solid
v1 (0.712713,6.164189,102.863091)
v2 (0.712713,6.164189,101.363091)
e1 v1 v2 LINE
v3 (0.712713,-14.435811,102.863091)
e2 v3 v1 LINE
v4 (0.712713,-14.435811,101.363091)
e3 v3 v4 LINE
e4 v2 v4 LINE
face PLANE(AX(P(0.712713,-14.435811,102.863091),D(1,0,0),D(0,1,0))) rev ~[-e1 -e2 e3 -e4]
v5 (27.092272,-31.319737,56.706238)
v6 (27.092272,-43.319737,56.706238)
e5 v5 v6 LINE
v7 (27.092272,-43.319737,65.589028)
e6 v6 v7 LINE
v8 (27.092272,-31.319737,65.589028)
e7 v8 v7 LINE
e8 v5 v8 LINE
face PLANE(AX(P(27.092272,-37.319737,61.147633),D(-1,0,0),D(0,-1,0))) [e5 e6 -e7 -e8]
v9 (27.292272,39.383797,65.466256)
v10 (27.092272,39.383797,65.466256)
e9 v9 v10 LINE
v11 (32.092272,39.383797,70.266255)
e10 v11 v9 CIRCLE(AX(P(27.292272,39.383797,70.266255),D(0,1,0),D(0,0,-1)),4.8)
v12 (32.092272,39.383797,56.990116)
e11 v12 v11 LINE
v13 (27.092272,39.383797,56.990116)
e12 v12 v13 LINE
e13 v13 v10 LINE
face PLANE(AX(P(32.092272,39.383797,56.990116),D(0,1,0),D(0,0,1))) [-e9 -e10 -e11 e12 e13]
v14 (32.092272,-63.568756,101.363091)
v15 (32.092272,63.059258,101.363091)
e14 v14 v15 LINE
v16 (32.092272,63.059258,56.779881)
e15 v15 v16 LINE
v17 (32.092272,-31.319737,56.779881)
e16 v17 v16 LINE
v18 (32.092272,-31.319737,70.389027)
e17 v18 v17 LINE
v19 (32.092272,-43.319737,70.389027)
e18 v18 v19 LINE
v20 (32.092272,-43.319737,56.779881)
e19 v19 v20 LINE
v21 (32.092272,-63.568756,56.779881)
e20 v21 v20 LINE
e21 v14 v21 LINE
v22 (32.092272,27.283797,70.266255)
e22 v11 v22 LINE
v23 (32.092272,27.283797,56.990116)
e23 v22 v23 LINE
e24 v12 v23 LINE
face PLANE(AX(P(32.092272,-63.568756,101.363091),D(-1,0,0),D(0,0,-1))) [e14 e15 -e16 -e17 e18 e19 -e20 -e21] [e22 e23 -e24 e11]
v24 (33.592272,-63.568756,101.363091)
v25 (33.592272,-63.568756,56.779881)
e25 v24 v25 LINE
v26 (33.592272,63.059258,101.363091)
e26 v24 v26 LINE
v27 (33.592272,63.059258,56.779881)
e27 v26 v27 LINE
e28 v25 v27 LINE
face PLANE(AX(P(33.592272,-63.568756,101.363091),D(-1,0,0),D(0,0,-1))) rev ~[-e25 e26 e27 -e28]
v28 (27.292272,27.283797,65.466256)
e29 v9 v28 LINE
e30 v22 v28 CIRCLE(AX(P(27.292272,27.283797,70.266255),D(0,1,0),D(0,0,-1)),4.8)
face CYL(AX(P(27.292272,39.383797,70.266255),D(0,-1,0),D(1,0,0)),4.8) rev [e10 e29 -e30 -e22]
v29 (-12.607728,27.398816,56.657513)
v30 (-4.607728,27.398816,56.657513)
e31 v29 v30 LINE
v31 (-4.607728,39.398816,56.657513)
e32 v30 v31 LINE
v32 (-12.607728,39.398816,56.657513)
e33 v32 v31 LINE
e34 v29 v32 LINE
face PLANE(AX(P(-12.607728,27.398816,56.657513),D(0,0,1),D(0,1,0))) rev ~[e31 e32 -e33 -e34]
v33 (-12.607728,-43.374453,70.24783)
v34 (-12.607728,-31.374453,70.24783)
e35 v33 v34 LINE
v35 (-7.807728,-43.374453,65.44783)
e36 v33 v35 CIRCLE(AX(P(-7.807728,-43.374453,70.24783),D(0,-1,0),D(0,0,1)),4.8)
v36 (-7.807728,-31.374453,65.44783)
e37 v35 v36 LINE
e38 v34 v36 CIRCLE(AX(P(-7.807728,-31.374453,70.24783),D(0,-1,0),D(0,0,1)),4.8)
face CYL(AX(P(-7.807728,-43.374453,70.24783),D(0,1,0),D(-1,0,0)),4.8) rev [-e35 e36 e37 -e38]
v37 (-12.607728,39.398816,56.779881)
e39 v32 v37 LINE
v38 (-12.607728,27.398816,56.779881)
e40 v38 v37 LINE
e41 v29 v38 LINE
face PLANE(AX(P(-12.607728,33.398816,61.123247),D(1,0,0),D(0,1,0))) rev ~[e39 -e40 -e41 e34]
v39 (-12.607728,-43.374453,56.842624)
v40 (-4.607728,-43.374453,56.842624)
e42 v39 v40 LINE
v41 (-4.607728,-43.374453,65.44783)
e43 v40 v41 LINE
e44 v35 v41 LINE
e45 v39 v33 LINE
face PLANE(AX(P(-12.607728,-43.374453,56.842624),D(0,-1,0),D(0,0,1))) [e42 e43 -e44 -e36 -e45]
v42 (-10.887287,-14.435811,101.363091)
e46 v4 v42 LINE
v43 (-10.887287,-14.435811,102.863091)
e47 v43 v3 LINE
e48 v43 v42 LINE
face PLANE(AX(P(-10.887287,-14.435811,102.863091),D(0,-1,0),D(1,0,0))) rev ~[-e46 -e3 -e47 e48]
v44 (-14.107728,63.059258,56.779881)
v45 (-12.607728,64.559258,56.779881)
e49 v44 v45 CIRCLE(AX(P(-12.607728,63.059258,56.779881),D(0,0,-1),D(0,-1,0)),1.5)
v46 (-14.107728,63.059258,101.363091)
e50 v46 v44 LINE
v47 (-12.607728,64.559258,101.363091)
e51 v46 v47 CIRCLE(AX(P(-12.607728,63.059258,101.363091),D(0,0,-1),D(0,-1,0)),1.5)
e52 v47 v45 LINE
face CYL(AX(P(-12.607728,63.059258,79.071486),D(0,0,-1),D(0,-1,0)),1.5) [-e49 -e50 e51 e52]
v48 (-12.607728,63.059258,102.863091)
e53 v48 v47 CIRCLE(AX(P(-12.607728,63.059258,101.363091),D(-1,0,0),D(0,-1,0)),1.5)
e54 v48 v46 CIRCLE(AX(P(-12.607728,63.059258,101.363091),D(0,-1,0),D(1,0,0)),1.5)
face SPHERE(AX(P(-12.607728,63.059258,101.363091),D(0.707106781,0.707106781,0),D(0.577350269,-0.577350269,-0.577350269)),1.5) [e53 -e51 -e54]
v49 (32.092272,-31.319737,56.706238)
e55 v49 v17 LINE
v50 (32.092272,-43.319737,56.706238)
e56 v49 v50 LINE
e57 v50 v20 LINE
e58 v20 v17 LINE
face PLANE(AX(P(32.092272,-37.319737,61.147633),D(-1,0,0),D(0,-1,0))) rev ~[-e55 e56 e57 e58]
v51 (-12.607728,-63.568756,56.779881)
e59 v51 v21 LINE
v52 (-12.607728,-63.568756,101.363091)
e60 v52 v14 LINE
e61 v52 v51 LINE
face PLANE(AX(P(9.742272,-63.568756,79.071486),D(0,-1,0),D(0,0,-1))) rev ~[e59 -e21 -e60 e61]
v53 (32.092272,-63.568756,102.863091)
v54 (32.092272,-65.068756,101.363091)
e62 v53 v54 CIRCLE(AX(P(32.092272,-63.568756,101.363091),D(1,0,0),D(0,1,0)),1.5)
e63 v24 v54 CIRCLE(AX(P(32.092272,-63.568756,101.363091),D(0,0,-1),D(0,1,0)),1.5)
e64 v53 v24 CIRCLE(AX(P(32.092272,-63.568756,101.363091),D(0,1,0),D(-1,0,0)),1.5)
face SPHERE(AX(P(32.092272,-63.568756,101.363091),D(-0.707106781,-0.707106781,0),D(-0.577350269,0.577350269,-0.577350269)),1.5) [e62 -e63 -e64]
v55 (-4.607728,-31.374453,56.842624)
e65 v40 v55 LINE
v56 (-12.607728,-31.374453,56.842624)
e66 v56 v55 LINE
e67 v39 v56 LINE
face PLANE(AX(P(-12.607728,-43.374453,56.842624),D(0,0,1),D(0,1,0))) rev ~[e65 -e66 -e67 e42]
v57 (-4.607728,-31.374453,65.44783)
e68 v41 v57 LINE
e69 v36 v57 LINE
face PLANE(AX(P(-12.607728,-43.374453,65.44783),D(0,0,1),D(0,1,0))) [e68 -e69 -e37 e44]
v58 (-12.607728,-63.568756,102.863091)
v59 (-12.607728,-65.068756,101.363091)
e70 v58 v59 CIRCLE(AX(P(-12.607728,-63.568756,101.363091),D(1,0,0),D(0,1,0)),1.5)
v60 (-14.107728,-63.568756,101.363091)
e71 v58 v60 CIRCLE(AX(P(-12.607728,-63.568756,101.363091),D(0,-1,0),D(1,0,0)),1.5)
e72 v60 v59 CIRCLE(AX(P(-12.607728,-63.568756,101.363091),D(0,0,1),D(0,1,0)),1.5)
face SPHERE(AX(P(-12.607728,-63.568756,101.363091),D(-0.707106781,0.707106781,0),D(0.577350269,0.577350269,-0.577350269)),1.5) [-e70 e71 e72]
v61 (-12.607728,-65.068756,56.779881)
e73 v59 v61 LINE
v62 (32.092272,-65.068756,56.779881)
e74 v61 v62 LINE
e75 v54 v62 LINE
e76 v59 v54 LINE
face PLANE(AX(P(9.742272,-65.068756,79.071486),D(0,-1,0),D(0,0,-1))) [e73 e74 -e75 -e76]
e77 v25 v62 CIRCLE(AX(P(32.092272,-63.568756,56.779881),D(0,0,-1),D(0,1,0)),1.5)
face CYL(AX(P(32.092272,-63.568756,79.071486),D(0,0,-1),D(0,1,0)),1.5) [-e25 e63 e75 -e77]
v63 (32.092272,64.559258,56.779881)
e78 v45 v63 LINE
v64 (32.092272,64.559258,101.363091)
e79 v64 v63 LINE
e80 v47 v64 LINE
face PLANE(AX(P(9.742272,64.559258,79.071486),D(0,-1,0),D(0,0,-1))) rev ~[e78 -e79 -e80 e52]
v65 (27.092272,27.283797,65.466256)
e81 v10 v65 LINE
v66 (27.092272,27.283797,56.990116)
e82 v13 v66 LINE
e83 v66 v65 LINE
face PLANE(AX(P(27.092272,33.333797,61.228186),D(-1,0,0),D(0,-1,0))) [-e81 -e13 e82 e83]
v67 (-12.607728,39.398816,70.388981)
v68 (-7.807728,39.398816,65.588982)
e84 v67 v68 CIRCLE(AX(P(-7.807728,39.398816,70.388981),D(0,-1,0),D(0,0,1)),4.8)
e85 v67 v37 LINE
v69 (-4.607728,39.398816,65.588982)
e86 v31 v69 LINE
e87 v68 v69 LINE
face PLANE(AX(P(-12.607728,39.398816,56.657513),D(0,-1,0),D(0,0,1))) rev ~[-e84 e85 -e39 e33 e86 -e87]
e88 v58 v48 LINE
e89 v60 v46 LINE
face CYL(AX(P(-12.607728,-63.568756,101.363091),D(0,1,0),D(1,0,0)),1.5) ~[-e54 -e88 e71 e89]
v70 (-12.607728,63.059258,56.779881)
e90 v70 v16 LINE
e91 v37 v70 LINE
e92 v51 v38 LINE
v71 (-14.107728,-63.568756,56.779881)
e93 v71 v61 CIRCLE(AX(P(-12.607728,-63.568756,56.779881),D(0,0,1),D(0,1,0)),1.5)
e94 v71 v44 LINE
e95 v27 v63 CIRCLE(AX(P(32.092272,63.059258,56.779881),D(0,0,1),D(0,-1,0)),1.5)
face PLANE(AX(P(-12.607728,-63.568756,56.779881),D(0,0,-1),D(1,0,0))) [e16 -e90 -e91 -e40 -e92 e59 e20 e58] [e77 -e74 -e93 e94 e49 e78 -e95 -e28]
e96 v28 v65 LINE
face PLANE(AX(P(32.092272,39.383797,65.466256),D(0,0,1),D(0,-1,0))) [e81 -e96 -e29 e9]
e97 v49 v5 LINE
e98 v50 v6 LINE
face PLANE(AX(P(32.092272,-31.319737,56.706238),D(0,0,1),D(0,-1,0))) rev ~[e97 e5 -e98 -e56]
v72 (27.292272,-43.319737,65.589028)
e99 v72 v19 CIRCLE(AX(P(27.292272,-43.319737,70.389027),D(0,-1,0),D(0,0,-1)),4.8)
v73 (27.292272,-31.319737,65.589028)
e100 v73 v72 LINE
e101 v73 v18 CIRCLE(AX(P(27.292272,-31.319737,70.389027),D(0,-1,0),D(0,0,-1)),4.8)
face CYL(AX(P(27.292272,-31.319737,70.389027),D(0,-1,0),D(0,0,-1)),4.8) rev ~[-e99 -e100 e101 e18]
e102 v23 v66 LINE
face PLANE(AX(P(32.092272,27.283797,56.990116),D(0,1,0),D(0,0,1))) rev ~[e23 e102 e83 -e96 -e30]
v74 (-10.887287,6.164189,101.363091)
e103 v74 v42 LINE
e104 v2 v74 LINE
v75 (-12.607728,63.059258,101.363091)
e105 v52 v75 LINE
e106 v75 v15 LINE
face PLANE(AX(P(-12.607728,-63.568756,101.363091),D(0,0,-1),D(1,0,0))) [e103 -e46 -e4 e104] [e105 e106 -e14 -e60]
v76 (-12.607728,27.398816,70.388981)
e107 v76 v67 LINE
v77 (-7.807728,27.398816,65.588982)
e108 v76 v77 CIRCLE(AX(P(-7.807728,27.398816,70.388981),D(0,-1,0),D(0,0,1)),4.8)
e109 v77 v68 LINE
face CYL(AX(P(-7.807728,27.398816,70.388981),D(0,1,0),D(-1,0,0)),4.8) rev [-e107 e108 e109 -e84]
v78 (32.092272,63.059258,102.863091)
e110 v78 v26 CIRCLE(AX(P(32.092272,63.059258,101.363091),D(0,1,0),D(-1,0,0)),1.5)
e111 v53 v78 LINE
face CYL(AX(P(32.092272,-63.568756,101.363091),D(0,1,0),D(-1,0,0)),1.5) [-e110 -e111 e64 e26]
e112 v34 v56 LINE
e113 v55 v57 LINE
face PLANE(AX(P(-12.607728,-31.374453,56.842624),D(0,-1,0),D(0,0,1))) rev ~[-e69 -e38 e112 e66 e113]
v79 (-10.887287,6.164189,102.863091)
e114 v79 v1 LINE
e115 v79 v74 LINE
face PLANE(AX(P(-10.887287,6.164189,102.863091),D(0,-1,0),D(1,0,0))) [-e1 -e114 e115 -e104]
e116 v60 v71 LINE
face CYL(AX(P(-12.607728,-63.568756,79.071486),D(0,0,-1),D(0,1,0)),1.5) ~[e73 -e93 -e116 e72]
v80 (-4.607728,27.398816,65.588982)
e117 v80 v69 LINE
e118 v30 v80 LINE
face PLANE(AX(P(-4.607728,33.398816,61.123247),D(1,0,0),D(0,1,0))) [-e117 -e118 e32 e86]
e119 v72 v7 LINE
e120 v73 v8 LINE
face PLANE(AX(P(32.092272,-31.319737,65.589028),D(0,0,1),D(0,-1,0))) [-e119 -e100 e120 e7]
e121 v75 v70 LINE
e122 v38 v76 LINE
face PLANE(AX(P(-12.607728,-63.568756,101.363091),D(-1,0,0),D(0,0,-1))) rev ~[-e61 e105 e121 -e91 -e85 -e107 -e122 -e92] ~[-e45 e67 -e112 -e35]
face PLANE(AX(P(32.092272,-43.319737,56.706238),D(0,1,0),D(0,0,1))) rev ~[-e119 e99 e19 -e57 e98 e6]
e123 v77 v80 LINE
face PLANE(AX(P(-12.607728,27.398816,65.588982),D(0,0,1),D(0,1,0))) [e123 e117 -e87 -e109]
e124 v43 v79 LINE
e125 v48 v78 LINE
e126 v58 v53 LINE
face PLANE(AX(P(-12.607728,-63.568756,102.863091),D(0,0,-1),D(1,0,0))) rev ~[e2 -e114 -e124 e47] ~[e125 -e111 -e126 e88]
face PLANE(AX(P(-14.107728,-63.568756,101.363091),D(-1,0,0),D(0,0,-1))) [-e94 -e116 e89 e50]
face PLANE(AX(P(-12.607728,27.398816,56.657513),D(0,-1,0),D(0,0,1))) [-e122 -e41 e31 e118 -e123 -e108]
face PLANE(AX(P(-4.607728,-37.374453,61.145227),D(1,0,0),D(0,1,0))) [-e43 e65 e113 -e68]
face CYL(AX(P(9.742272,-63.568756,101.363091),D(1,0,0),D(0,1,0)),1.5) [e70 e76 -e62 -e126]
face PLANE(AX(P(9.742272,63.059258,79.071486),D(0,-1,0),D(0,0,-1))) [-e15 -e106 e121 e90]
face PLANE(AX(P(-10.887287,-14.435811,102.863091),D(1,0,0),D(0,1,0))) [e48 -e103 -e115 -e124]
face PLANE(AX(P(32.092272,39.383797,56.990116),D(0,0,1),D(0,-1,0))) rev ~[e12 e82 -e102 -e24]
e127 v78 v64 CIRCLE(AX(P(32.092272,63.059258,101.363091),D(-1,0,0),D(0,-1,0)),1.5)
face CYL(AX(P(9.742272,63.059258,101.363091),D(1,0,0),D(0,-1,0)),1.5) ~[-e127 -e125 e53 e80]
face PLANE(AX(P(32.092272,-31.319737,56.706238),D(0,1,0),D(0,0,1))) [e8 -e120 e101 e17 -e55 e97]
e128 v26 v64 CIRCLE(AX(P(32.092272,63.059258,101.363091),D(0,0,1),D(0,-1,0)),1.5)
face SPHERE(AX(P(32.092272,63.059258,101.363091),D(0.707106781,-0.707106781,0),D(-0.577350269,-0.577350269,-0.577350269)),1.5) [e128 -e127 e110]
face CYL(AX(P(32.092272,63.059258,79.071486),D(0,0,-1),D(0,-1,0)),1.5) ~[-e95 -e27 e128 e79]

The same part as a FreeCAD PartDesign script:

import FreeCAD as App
import Part
import Sketcher


def edges_at(feature, points):
    """Names of the edges that pass closest to the given points."""
    edges = feature.Shape.Edges
    near = lambda p: min(range(len(edges)), key=lambda i: edges[i].distToShape(Part.Vertex(*p))[0])
    return sorted({f"Edge{near(p) + 1}" for p in points})


def faces_at(feature, points):
    """Names of the faces that lie closest to the given points."""
    faces = feature.Shape.Faces
    near = lambda p: min(range(len(faces)), key=lambda i: faces[i].distToShape(Part.Vertex(*p))[0])
    return sorted({f"Face{near(p) + 1}" for p in points})


def add_polygon(sketch, points):
    """Adds a closed chain of lines whose ends are joined by coincident constraints."""
    first, n = sketch.GeometryCount, len(points)
    for a, b in zip(points, points[1:] + points[:1]):
        sketch.addGeometry(Part.LineSegment(App.Vector(*a, 0), App.Vector(*b, 0)), False)
    for i in range(n):
        sketch.addConstraint(Sketcher.Constraint("Coincident", first + i, 2, first + (i + 1) % n, 1))

doc = App.newDocument("Part")
body = doc.addObject("PartDesign::Body", "Body")

sketch1 = body.newObject("Sketcher::SketchObject", "Sketch")
sketch1.AttachmentSupport = (doc.getObject("XZ_Plane"), [""])
sketch1.MapMode = "FlatFace"
sketch1.AttachmentOffset = App.Placement(App.Vector(0, 0, 63.568756), App.Rotation())
add_polygon(sketch1, [(32, 101), (-13, 101), (-13, 57), (32, 57)])
sketch1.addConstraint(Sketcher.Constraint("Horizontal", 0))
sketch1.addConstraint(Sketcher.Constraint("Vertical", 1))
sketch1.addConstraint(Sketcher.Constraint("Horizontal", 2))
sketch1.addConstraint(Sketcher.Constraint("Vertical", 3))
sketch1.addConstraint(Sketcher.Constraint("DistanceX", 0, 2, 0, 1, 44.7))
sketch1.addConstraint(Sketcher.Constraint("DistanceY", 1, 2, 1, 1, 44.58321))
sketch1.addConstraint(Sketcher.Constraint("DistanceY", -1, 1, 0, 2, 101.363091))
sketch1.addConstraint(Sketcher.Constraint("DistanceX", 0, 2, -1, 1, 12.607728))
pad1 = body.newObject("PartDesign::Pad", "Pad")
pad1.Profile = sketch1
pad1.Length = 126.628014
pad1.Reversed = True
doc.recompute()

thickness = body.newObject("PartDesign::Thickness", "Thickness")
thickness.Base = (pad1, faces_at(pad1, [(9.742, -0.255, 56.78)]))
thickness.Value = 1.5
thickness.Reversed = False
thickness.Join = "Arc"

sketch2 = body.newObject("Sketcher::SketchObject", "Sketch001")
sketch2.AttachmentSupport = (doc.getObject("YZ_Plane"), [""])
sketch2.MapMode = "FlatFace"
sketch2.AttachmentOffset = App.Placement(App.Vector(0, 0, -12.607728), App.Rotation())
add_polygon(sketch2, [(-43, 65), (-43, 57), (-31, 57), (-31, 65)])
add_polygon(sketch2, [(27, 66), (27, 57), (39, 57), (39, 66)])
sketch2.addConstraint(Sketcher.Constraint("Vertical", 0))
sketch2.addConstraint(Sketcher.Constraint("Horizontal", 1))
sketch2.addConstraint(Sketcher.Constraint("Vertical", 2))
sketch2.addConstraint(Sketcher.Constraint("Horizontal", 3))
sketch2.addConstraint(Sketcher.Constraint("Vertical", 4))
sketch2.addConstraint(Sketcher.Constraint("Horizontal", 5))
sketch2.addConstraint(Sketcher.Constraint("Vertical", 6))
sketch2.addConstraint(Sketcher.Constraint("Horizontal", 7))
sketch2.addConstraint(Sketcher.Constraint("Equal", 3, 5))
sketch2.addConstraint(Sketcher.Constraint("DistanceX", 1, 1, 1, 2, 12.0))
sketch2.addConstraint(Sketcher.Constraint("DistanceY", 4, 2, 4, 1, 8.931469))
sketch2.addConstraint(Sketcher.Constraint("DistanceY", 0, 2, 0, 1, 8.605206))
sketch2.addConstraint(Sketcher.Constraint("DistanceY", -1, 1, 2, 2, 65.44783))
sketch2.addConstraint(Sketcher.Constraint("DistanceY", -1, 1, 6, 2, 65.588982))
sketch2.addConstraint(Sketcher.Constraint("DistanceX", 1, 2, 4, 2, 58.773269))
sketch2.addConstraint(Sketcher.Constraint("DistanceX", 0, 2, -1, 1, 43.374453))
pad2 = body.newObject("PartDesign::Pad", "Pad001")
pad2.Profile = sketch2
pad2.Length = 8

sketch3 = body.newObject("Sketcher::SketchObject", "Sketch002")
sketch3.AttachmentSupport = (doc.getObject("YZ_Plane"), [""])
sketch3.MapMode = "FlatFace"
sketch3.AttachmentOffset = App.Placement(App.Vector(0, 0, 32.092272), App.Rotation())
add_polygon(sketch3, [(39, 65), (39, 57), (27, 57), (27, 65)])
add_polygon(sketch3, [(-31, 66), (-31, 57), (-43, 57), (-43, 66)])
sketch3.addConstraint(Sketcher.Constraint("Vertical", 0))
sketch3.addConstraint(Sketcher.Constraint("Horizontal", 1))
sketch3.addConstraint(Sketcher.Constraint("Vertical", 2))
sketch3.addConstraint(Sketcher.Constraint("Horizontal", 3))
sketch3.addConstraint(Sketcher.Constraint("Vertical", 4))
sketch3.addConstraint(Sketcher.Constraint("Horizontal", 5))
sketch3.addConstraint(Sketcher.Constraint("Vertical", 6))
sketch3.addConstraint(Sketcher.Constraint("Horizontal", 7))
sketch3.addConstraint(Sketcher.Constraint("DistanceX", 5, 2, 5, 1, 12.0))
sketch3.addConstraint(Sketcher.Constraint("DistanceX", 1, 2, 1, 1, 12.1))
sketch3.addConstraint(Sketcher.Constraint("DistanceY", 0, 2, 0, 1, 8.476139))
sketch3.addConstraint(Sketcher.Constraint("DistanceY", 4, 2, 4, 1, 8.882789))
sketch3.addConstraint(Sketcher.Constraint("DistanceY", -1, 1, 4, 2, 56.706238))
sketch3.addConstraint(Sketcher.Constraint("DistanceY", 4, 2, 1, 2, 0.283878))
sketch3.addConstraint(Sketcher.Constraint("DistanceX", -1, 1, 0, 2, 39.383797))
sketch3.addConstraint(Sketcher.Constraint("DistanceX", 4, 2, -1, 1, 31.319737))
pad3 = body.newObject("PartDesign::Pad", "Pad002")
pad3.Profile = sketch3
pad3.Length = 5
pad3.Reversed = True

sketch4 = body.newObject("Sketcher::SketchObject", "Sketch003")
sketch4.AttachmentSupport = (doc.getObject("XY_Plane"), [""])
sketch4.MapMode = "FlatFace"
sketch4.AttachmentOffset = App.Placement(App.Vector(0, 0, 102.863091), App.Rotation())
add_polygon(sketch4, [(-11, 6), (-11, -14), (1, -14), (1, 6)])
sketch4.addConstraint(Sketcher.Constraint("Vertical", 0))
sketch4.addConstraint(Sketcher.Constraint("Horizontal", 1))
sketch4.addConstraint(Sketcher.Constraint("Vertical", 2))
sketch4.addConstraint(Sketcher.Constraint("Horizontal", 3))
sketch4.addConstraint(Sketcher.Constraint("DistanceX", 1, 1, 1, 2, 11.6))
sketch4.addConstraint(Sketcher.Constraint("DistanceY", 0, 2, 0, 1, 20.6))
sketch4.addConstraint(Sketcher.Constraint("DistanceY", 0, 2, -1, 1, 14.435811))
sketch4.addConstraint(Sketcher.Constraint("DistanceX", 0, 2, -1, 1, 10.887287))
pocket1 = body.newObject("PartDesign::Pocket", "Pocket")
pocket1.Profile = sketch4
pocket1.Length = 5
doc.recompute()

fillet = body.newObject("PartDesign::Fillet", "Fillet")
fillet.Base = (pocket1, edges_at(pocket1, [
    (32.092, -37.32, 65.589),
    (32.092, 33.334, 65.466),
    (-12.608, -37.374, 65.448),
    (-12.608, 33.399, 65.589),
]))
fillet.Radius = 4.8

doc.recompute()
